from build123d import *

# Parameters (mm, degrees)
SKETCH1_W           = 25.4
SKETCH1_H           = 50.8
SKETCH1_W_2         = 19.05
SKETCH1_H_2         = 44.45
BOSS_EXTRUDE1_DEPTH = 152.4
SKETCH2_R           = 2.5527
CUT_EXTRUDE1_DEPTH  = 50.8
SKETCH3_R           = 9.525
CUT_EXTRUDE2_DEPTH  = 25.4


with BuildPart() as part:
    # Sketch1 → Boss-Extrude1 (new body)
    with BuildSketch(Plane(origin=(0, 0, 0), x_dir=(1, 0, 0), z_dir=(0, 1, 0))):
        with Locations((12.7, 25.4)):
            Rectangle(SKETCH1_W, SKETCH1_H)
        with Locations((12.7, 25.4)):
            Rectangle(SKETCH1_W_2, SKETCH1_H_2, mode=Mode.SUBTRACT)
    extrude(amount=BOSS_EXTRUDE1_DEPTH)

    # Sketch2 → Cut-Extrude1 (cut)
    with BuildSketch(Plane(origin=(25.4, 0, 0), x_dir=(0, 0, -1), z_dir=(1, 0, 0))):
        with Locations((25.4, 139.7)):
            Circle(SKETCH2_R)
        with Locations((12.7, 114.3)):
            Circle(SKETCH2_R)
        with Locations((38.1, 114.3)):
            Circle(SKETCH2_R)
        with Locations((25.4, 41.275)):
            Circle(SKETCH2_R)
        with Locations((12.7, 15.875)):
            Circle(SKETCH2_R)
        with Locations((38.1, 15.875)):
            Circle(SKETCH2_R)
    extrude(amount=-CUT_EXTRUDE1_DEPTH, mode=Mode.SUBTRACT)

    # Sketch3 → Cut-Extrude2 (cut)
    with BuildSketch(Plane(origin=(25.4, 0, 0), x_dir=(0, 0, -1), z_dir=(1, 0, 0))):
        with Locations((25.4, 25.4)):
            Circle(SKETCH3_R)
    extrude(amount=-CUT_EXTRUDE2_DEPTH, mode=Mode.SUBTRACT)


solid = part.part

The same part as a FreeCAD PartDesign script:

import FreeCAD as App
import Part
import Sketcher

V = App.Vector
Q = App.Units.Quantity

doc = App.newDocument("Part")
body = doc.addObject("PartDesign::Body", "Body")

# Sketch on XZ plane
sketch1 = body.newObject("Sketcher::SketchObject", "Sketch")
sketch1.AttachmentSupport = (doc.getObject("XZ_Plane"), [""])
sketch1.MapMode = "FlatFace"
sketch1.addGeometry([
    Part.LineSegment(V(0, -51, 0), V(0, 0, 0)),  # 0
    Part.LineSegment(V(0, 0, 0), V(25, 0, 0)),  # 1
    Part.LineSegment(V(25, 0, 0), V(25, -51, 0)),  # 2
    Part.LineSegment(V(25, -51, 0), V(0, -51, 0)),  # 3
    Part.LineSegment(V(22, -3, 0), V(3, -3, 0)),  # 4
    Part.LineSegment(V(3, -3, 0), V(3, -48, 0)),  # 5
    Part.LineSegment(V(3, -48, 0), V(22, -48, 0)),  # 6
    Part.LineSegment(V(22, -48, 0), V(22, -3, 0)),  # 7
], False)
sketch1.addConstraint([
    Sketcher.Constraint("Coincident", 0, 2, 1, 1),
    Sketcher.Constraint("Coincident", 1, 2, 2, 1),
    Sketcher.Constraint("Coincident", 2, 2, 3, 1),
    Sketcher.Constraint("Coincident", 3, 2, 0, 1),
    Sketcher.Constraint("Coincident", 4, 2, 5, 1),
    Sketcher.Constraint("Coincident", 5, 2, 6, 1),
    Sketcher.Constraint("Coincident", 6, 2, 7, 1),
    Sketcher.Constraint("Coincident", 7, 2, 4, 1),
    Sketcher.Constraint("Vertical", 0),
    Sketcher.Constraint("Horizontal", 1),
    Sketcher.Constraint("Vertical", 2),
    Sketcher.Constraint("Horizontal", 3),
    Sketcher.Constraint("Horizontal", 4),
    Sketcher.Constraint("Vertical", 5),
    Sketcher.Constraint("Horizontal", 6),
    Sketcher.Constraint("Vertical", 7),
    Sketcher.Constraint("Coincident", 0, 2, -1, 1),
    Sketcher.Constraint("DistanceX", 1, 1, 1, 2, Q("1 in")),
    Sketcher.Constraint("DistanceY", 0, 1, 0, 2, Q("2 in")),
    Sketcher.Constraint("DistanceX", 4, 2, 4, 1, Q("0.75 in")),
    Sketcher.Constraint("DistanceY", 5, 2, 5, 1, Q("1.75 in")),
    Sketcher.Constraint("DistanceX", -1, 1, 4, 2, Q("0.125 in")),
    Sketcher.Constraint("DistanceY", 4, 2, -1, 1, Q("0.125 in")),
])
pad1 = body.newObject("PartDesign::Pad", "Pad")
pad1.Profile = sketch1
pad1.Length = Q("6 in")
pad1.Reversed = True

# Sketch on YZ plane
sketch2 = body.newObject("Sketcher::SketchObject", "Sketch001")
sketch2.AttachmentSupport = (doc.getObject("YZ_Plane"), [""])
sketch2.MapMode = "FlatFace"
sketch2.AttachmentOffset = App.Placement(V(0, 0, 1 * 25.4), App.Rotation())
sketch2.addGeometry([
    Part.Circle(V(139.7, -25.4, 0), V(0, 0, 1), 2.6),  # 0
    Part.Circle(V(114.3, -12.7, 0), V(0, 0, 1), 2.6),  # 1
    Part.Circle(V(114.3, -38.1, 0), V(0, 0, 1), 2.6),  # 2
    Part.Circle(V(41.3, -25.4, 0), V(0, 0, 1), 2.6),  # 3
    Part.Circle(V(15.9, -12.7, 0), V(0, 0, 1), 2.6),  # 4
    Part.Circle(V(15.9, -38.1, 0), V(0, 0, 1), 2.6),  # 5
], False)
sketch2.addConstraint([
    Sketcher.Constraint("Equal", 0, 1),
    Sketcher.Constraint("Equal", 1, 2),
    Sketcher.Constraint("Equal", 2, 3),
    Sketcher.Constraint("Equal", 3, 4),
    Sketcher.Constraint("Equal", 4, 5),
    Sketcher.Constraint("Horizontal", 0, 3, 3, 3),
    Sketcher.Constraint("Horizontal", 1, 3, 4, 3),
    Sketcher.Constraint("Horizontal", 2, 3, 5, 3),
    Sketcher.Constraint("Vertical", 1, 3, 2, 3),
    Sketcher.Constraint("Vertical", 4, 3, 5, 3),
    Sketcher.Constraint("Diameter", 0, Q("0.201 in")),
    Sketcher.Constraint("DistanceY", 0, 3, -1, 1, Q("1 in")),
    Sketcher.Constraint("DistanceX", 1, 3, 0, 3, Q("1 in")),
    Sketcher.Constraint("DistanceY", 2, 3, 1, 3, Q("1 in")),
    Sketcher.Constraint("DistanceX", 4, 3, 3, 3, Q("1 in")),
    Sketcher.Constraint("DistanceX", -1, 1, 0, 3, Q("5.5 in")),
    Sketcher.Constraint("DistanceY", 1, 3, -1, 1, Q("0.5 in")),
    Sketcher.Constraint("DistanceX", -1, 1, 3, 3, Q("1.625 in")),
])
pocket1 = body.newObject("PartDesign::Pocket", "Pocket")
pocket1.Profile = sketch2
pocket1.Length = Q("2 in")

# Sketch on YZ plane
sketch3 = body.newObject("Sketcher::SketchObject", "Sketch002")
sketch3.AttachmentSupport = (doc.getObject("YZ_Plane"), [""])
sketch3.MapMode = "FlatFace"
sketch3.AttachmentOffset = App.Placement(V(0, 0, 1 * 25.4), App.Rotation())
sketch3.addGeometry(Part.Circle(V(25, -25, 0), V(0, 0, 1), 10), False)
sketch3.addConstraint([
    Sketcher.Constraint("Diameter", 0, Q("0.75 in")),
    Sketcher.Constraint("DistanceX", -1, 1, 0, 3, Q("1 in")),
    Sketcher.Constraint("DistanceY", 0, 3, -1, 1, Q("1 in")),
])
pocket2 = body.newObject("PartDesign::Pocket", "Pocket001")
pocket2.Profile = sketch3
pocket2.Length = Q("1 in")

doc.recompute()
